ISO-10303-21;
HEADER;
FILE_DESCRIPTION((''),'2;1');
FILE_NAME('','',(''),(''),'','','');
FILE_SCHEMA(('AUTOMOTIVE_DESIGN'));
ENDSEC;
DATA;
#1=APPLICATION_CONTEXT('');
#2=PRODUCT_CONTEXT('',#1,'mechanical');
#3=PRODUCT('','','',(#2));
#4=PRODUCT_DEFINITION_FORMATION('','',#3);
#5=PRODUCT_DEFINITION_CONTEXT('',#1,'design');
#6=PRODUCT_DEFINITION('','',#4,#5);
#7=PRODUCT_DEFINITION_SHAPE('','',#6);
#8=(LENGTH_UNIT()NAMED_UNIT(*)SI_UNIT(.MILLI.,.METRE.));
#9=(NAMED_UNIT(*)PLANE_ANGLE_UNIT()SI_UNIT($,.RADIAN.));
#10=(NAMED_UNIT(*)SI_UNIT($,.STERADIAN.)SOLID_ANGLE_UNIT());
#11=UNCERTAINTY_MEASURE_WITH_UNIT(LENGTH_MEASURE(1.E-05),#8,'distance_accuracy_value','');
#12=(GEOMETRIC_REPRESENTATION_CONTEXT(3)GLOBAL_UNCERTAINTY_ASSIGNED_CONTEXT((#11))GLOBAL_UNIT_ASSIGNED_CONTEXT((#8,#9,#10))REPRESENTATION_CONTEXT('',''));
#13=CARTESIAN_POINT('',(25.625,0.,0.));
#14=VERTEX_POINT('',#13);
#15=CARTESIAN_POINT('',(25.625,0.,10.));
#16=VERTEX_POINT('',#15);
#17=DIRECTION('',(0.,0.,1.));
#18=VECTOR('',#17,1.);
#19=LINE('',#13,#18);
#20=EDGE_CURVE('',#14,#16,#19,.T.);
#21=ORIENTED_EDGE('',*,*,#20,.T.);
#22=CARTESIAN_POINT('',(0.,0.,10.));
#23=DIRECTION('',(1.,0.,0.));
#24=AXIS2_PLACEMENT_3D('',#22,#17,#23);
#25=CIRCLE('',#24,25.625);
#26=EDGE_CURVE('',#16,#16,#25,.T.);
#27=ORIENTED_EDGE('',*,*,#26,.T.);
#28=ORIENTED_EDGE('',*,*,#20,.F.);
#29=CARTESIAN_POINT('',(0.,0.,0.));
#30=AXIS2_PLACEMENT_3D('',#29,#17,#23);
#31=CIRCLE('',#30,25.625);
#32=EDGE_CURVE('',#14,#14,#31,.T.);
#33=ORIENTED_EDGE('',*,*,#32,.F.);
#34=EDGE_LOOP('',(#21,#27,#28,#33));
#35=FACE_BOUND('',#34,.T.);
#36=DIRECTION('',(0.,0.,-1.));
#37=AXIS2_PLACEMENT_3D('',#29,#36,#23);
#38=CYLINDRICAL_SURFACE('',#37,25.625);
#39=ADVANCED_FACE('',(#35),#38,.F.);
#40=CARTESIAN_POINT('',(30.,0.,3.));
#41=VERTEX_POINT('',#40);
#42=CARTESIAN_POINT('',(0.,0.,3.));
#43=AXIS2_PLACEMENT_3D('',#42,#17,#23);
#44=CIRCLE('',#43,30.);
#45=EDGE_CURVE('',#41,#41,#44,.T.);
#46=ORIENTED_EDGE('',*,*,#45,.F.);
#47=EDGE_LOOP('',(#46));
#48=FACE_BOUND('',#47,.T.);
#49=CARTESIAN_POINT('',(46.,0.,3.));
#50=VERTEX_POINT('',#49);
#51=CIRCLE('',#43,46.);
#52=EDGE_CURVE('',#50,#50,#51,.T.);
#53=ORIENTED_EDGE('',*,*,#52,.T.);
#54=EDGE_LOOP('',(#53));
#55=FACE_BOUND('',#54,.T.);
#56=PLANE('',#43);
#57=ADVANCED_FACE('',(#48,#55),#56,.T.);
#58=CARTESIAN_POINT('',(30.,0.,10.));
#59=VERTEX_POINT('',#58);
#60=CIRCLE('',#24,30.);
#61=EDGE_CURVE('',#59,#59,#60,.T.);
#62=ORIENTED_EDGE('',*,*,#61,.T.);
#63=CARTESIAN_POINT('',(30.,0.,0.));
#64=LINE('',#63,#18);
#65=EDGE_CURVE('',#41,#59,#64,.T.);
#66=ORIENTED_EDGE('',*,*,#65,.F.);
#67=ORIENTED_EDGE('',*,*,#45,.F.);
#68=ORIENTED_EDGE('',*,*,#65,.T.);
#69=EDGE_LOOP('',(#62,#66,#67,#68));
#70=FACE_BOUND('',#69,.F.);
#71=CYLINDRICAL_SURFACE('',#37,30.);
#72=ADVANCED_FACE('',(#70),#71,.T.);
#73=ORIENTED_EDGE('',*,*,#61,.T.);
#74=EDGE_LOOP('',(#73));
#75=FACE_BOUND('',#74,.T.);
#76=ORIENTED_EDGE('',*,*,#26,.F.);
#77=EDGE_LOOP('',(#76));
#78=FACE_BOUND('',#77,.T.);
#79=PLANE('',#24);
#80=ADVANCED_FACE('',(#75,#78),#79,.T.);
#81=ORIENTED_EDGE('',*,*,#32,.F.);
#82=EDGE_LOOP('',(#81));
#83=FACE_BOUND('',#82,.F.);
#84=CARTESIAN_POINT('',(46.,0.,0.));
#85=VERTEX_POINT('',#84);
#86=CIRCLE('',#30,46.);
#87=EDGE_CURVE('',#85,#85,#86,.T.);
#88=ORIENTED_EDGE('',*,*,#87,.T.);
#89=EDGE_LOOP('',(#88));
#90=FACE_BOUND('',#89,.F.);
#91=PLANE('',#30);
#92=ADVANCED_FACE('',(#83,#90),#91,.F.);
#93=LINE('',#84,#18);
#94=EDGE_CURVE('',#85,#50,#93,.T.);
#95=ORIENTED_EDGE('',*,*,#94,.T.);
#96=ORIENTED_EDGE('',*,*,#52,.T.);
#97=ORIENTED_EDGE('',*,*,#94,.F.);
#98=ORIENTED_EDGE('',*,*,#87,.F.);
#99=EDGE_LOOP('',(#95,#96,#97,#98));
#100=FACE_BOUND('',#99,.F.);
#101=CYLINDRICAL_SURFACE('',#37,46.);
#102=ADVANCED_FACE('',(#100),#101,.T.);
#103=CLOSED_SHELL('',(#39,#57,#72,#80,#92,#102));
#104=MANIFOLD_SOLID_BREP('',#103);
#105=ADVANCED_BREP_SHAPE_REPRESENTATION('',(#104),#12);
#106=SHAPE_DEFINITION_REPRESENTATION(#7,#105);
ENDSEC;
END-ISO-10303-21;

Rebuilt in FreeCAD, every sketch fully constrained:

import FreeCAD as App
import Part
import Sketcher

V = App.Vector
Q = App.Units.Quantity

doc = App.newDocument("Part")
body = doc.addObject("PartDesign::Body", "Body")

# Sketch on XY plane
sketch1 = doc.addObject("Sketcher::SketchObject", "Sketch")
body.addObject(sketch1)
sketch1.AttachmentSupport = (doc.XY_Plane, [""])
sketch1.MapMode = "FlatFace"
sketch1.addGeometry([
    Part.Circle(V(0, 0, 0), V(0, 0, 1), 46),
    Part.Circle(V(0, 0, 0), V(0, 0, 1), 30),
], False)
sketch1.addConstraint([
    Sketcher.Constraint("Coincident", 0, 3, -1, 1),
    Sketcher.Constraint("Coincident", 1, 3, -1, 1),
    Sketcher.Constraint("Diameter", 0, Q("92 mm")),
    Sketcher.Constraint("Diameter", 1, Q("60 mm")),
])
pad1 = doc.addObject("PartDesign::Pad", "Pad")
body.addObject(pad1)
pad1.Profile = sketch1
pad1.Length = 3

# Sketch on XY plane
sketch2 = doc.addObject("Sketcher::SketchObject", "Sketch001")
body.addObject(sketch2)
sketch2.AttachmentSupport = (doc.XY_Plane, [""])
sketch2.MapMode = "FlatFace"
sketch2.addGeometry([
    Part.Circle(V(0, 0, 0), V(0, 0, 1), 30),
    Part.Circle(V(0, 0, 0), V(0, 0, 1), 26),
], False)
sketch2.addConstraint([
    Sketcher.Constraint("Coincident", 0, 3, -1, 1),
    Sketcher.Constraint("Coincident", 1, 3, -1, 1),
    Sketcher.Constraint("Diameter", 0, Q("60 mm")),
    Sketcher.Constraint("Diameter", 1, Q("51.25 mm")),
])
pad2 = doc.addObject("PartDesign::Pad", "Pad001")
body.addObject(pad2)
pad2.Profile = sketch2
pad2.Length = 10

doc.recompute()
